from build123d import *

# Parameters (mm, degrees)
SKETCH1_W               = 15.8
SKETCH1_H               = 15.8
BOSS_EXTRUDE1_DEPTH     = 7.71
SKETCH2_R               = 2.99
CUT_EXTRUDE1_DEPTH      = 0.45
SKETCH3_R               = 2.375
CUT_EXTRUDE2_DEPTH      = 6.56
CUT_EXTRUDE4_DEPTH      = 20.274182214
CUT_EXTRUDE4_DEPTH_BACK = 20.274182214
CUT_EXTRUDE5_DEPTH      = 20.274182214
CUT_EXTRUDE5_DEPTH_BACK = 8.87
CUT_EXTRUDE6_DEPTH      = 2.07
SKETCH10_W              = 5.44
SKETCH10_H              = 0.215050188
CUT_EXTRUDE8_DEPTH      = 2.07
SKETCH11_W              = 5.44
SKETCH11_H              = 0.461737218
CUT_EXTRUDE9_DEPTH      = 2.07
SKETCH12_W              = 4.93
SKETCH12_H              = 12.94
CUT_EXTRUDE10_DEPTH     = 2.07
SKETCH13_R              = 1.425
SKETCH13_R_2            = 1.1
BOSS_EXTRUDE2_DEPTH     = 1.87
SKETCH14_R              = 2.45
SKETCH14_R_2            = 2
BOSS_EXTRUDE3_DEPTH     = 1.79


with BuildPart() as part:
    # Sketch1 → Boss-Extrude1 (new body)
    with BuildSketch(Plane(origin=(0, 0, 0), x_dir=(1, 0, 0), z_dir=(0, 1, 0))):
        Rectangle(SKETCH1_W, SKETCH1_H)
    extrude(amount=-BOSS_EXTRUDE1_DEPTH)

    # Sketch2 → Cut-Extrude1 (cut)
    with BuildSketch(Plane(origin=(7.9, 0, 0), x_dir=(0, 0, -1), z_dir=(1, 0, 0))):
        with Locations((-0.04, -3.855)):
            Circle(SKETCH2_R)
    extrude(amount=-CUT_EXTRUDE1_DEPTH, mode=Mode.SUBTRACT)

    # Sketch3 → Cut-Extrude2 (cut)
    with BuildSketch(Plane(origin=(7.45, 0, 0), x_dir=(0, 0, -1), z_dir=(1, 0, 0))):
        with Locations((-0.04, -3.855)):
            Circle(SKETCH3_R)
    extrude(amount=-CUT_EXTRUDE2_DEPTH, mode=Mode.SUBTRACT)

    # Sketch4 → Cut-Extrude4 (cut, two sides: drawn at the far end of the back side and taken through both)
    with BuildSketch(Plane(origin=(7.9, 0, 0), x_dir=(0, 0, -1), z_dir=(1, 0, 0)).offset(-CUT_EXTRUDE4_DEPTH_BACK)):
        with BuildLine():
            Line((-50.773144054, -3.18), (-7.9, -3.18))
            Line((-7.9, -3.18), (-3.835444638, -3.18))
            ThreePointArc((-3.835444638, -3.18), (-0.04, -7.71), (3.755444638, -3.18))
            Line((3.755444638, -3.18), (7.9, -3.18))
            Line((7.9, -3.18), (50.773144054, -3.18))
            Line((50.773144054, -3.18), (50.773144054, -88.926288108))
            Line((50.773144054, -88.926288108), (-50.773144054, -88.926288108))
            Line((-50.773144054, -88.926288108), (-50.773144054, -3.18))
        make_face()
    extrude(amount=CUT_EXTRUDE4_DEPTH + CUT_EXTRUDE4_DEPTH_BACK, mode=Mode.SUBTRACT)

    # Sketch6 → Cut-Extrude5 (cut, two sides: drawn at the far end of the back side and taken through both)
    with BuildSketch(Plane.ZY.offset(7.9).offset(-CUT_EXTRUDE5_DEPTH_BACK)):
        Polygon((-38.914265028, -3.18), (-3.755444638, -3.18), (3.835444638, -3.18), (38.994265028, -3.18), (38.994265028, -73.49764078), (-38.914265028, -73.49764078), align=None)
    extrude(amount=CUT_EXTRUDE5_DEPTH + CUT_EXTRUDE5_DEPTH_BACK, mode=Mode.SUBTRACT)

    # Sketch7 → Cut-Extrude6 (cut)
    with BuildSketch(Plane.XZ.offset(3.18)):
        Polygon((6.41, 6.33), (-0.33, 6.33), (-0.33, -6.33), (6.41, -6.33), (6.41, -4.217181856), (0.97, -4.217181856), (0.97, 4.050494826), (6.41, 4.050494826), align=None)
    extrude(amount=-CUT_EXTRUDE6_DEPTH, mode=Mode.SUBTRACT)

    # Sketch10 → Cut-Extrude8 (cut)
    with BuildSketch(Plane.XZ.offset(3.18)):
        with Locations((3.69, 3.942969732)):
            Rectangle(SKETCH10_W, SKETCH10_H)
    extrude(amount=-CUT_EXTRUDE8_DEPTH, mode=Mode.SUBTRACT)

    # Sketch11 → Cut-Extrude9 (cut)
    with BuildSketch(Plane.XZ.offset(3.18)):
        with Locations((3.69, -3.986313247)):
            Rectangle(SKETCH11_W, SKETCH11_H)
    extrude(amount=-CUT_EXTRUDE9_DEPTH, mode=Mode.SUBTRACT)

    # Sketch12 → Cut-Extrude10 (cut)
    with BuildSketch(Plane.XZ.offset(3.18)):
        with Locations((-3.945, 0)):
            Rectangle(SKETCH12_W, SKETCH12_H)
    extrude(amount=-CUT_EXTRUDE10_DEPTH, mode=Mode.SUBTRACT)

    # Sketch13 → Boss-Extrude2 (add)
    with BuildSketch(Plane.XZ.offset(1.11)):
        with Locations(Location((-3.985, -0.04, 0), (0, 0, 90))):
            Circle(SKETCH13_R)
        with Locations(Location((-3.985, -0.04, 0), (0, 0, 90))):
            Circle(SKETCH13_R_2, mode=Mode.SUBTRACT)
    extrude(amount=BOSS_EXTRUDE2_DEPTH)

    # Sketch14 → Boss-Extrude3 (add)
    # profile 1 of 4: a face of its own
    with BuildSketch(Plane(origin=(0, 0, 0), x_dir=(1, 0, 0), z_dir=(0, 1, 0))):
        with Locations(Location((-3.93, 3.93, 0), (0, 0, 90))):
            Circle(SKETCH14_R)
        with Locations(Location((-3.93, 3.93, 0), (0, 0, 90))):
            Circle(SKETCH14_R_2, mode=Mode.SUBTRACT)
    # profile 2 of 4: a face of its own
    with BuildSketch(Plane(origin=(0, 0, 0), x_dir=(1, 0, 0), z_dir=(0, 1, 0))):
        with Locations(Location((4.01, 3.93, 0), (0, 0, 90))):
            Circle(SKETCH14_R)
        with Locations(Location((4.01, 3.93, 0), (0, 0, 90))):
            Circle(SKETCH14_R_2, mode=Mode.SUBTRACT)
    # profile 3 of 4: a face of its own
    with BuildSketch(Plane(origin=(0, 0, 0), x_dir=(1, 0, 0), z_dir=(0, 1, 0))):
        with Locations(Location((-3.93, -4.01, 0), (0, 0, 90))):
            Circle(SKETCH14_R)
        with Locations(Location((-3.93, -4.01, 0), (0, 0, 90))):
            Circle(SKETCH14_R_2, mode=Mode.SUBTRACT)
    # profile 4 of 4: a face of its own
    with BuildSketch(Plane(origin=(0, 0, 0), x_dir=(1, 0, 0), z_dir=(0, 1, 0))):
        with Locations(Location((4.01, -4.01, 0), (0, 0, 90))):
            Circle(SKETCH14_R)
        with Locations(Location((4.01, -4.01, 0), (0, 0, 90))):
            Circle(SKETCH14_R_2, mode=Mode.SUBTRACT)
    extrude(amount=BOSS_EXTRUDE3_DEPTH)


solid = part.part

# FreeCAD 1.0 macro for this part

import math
import FreeCAD as App
import Part
import Sketcher

doc = App.newDocument("Part")
params = doc.addObject("Spreadsheet::Sheet", "Params")
for row, (alias, value) in enumerate([
    ("sketch1_width", "15.8 mm"),
    ("pad1_length", "7.71 mm"),
    ("sketch2_diameter", "5.98 mm"),
    ("pocket1_length", "0.45 mm"),
    ("sketch3_diameter", "4.75 mm"),
    ("pocket2_length", "6.56 mm"),
    ("pocket4_length", "20.274182 mm"),
    ("pocket4_length2", "8.87 mm"),
    ("sketch6_width", "6.74 mm"),
    ("sketch6_width2", "5.44 mm"),
    ("sketch6_height", "12.66 mm"),
    ("pocket5_length", "2.07 mm"),
    ("sketch7_width", "5.44 mm"),
    ("pocket6_length", "2.07 mm"),
    ("sketch8_width", "5.44 mm"),
    ("pocket7_length", "2.07 mm"),
    ("sketch9_width", "4.93 mm"),
    ("sketch9_height", "12.94 mm"),
    ("pocket8_length", "2.07 mm"),
    ("sketch10_diameter", "2.2 mm"),
    ("sketch10_diameter2", "2.85 mm"),
    ("pad2_length", "1.87 mm"),
    ("sketch11_diameter", "4 mm"),
    ("sketch11_diameter2", "4.9 mm"),
    ("pad3_length", "1.79 mm"),
], start=1):
    params.set(f"A{row}", alias)
    params.set(f"B{row}", "=" + value)
    params.setAlias(f"B{row}", alias)

body = doc.addObject("PartDesign::Body", "Body")

# Sketch on XZ plane
sketch1 = doc.addObject("Sketcher::SketchObject", "Sketch")
body.addObject(sketch1)
sketch1.AttachmentSupport = (doc.XZ_Plane, [""])
sketch1.MapMode = "FlatFace"
sketch1.addGeometry([
    Part.LineSegment(App.Vector(-7.9, -7.9, 0), App.Vector(-7.9, 7.9, 0)),
    Part.LineSegment(App.Vector(-7.9, 7.9, 0), App.Vector(7.9, 7.9, 0)),
    Part.LineSegment(App.Vector(7.9, 7.9, 0), App.Vector(7.9, -7.9, 0)),
    Part.LineSegment(App.Vector(7.9, -7.9, 0), App.Vector(-7.9, -7.9, 0)),
], False)
sketch1.addConstraint([
    Sketcher.Constraint("Coincident", 0, 2, 1, 1),
    Sketcher.Constraint("Coincident", 1, 2, 2, 1),
    Sketcher.Constraint("Coincident", 2, 2, 3, 1),
    Sketcher.Constraint("Coincident", 3, 2, 0, 1),
    Sketcher.Constraint("Vertical", 0),
    Sketcher.Constraint("Horizontal", 1),
    Sketcher.Constraint("Vertical", 2),
    Sketcher.Constraint("Horizontal", 3),
    Sketcher.Constraint("Symmetric", 0, 2, 2, 2, -1, 1),
    Sketcher.Constraint("Equal", 3, 0),
    Sketcher.Constraint("DistanceX", 1, 1, 1, 2, 15.8),
])
sketch1.setExpression("Constraints[10]", "Params.sketch1_width")
pad1 = doc.addObject("PartDesign::Pad", "Pad")
body.addObject(pad1)
pad1.Profile = sketch1
pad1.setExpression("Length", "Params.pad1_length")

# Sketch on YZ plane
sketch2 = doc.addObject("Sketcher::SketchObject", "Sketch001")
body.addObject(sketch2)
sketch2.AttachmentSupport = (doc.YZ_Plane, [""])
sketch2.MapMode = "FlatFace"
sketch2.AttachmentOffset = App.Placement(App.Vector(0, 0, 7.9), App.Rotation())
sketch2.addGeometry(Part.Circle(App.Vector(-3.855, 0.04, 0), App.Vector(0, 0, 1), 2.99), False)
sketch2.addConstraint([
    Sketcher.Constraint("Diameter", 0, 5.98),
    Sketcher.Constraint("DistanceY", -1, 1, 0, 3, 0.04),
    Sketcher.Constraint("DistanceX", 0, 3, -1, 1, 3.855),
])
sketch2.setExpression("Constraints[0]", "Params.sketch2_diameter")
pocket1 = doc.addObject("PartDesign::Pocket", "Pocket")
body.addObject(pocket1)
pocket1.Profile = sketch2
pocket1.setExpression("Length", "Params.pocket1_length")

# Sketch on YZ plane
sketch3 = doc.addObject("Sketcher::SketchObject", "Sketch002")
body.addObject(sketch3)
sketch3.AttachmentSupport = (doc.YZ_Plane, [""])
sketch3.MapMode = "FlatFace"
sketch3.AttachmentOffset = App.Placement(App.Vector(0, 0, 7.45), App.Rotation())
sketch3.addGeometry(Part.Circle(App.Vector(-3.855, 0.04, 0), App.Vector(0, 0, 1), 2.375), False)
sketch3.addConstraint([
    Sketcher.Constraint("Diameter", 0, 4.75),
    Sketcher.Constraint("DistanceY", -1, 1, 0, 3, 0.04),
    Sketcher.Constraint("DistanceX", 0, 3, -1, 1, 3.855),
])
sketch3.setExpression("Constraints[0]", "Params.sketch3_diameter")
pocket2 = doc.addObject("PartDesign::Pocket", "Pocket001")
body.addObject(pocket2)
pocket2.Profile = sketch3
pocket2.setExpression("Length", "Params.pocket2_length")

# Sketch on YZ plane
sketch4 = doc.addObject("Sketcher::SketchObject", "Sketch003")
body.addObject(sketch4)
sketch4.AttachmentSupport = (doc.YZ_Plane, [""])
sketch4.MapMode = "FlatFace"
sketch4.AttachmentOffset = App.Placement(App.Vector(0, 0, 7.9), App.Rotation())
sketch4.addGeometry([
    Part.LineSegment(App.Vector(-3.18, 3.835445, 0), App.Vector(-3.18, 50.773144, 0)),  # 0
    Part.LineSegment(App.Vector(-3.18, 50.773144, 0), App.Vector(-88.926288, 50.773144, 0)),  # 1
    Part.LineSegment(App.Vector(-88.926288, 50.773144, 0), App.Vector(-88.926288, -50.773144, 0)),  # 2
    Part.LineSegment(App.Vector(-88.926288, -50.773144, 0), App.Vector(-3.18, -50.773144, 0)),  # 3
    Part.LineSegment(App.Vector(-3.18, -50.773144, 0), App.Vector(-3.18, -3.755445, 0)),  # 4
    Part.ArcOfCircle(Part.Circle(App.Vector(-3.855, 0.04, 0), App.Vector(0, 0, 1), 3.855), math.radians(79.915681), math.radians(280.084319)),  # 5
], False)
sketch4.addConstraint([
    Sketcher.Constraint("Coincident", 0, 2, 1, 1),
    Sketcher.Constraint("Coincident", 1, 2, 2, 1),
    Sketcher.Constraint("Coincident", 2, 2, 3, 1),
    Sketcher.Constraint("Coincident", 3, 2, 4, 1),
    Sketcher.Constraint("Coincident", 4, 2, 5, 2),
    Sketcher.Constraint("Coincident", 5, 1, 0, 1),
    Sketcher.Constraint("Vertical", 0),
    Sketcher.Constraint("Horizontal", 1),
    Sketcher.Constraint("Vertical", 2),
    Sketcher.Constraint("Horizontal", 3),
    Sketcher.Constraint("Vertical", 4),
    Sketcher.Constraint("Symmetric", 0, 2, 3, 2, -1),
    Sketcher.Constraint("Radius", 5, 3.855),
    Sketcher.Constraint("DistanceY", -1, 1, 5, 3, 0.04),
    Sketcher.Constraint("DistanceX", 0, 2, -1, 1, 3.18),
    Sketcher.Constraint("DistanceY", 0, 1, 0, 2, 46.937699),
    Sketcher.Constraint("DistanceX", 5, 3, -1, 1, 3.855),
    Sketcher.Constraint("DistanceX", 1, 2, 1, 1, 85.746288),
])
pocket3 = doc.addObject("PartDesign::Pocket", "Pocket002")
body.addObject(pocket3)
pocket3.Profile = sketch4
pocket3.Type = "ThroughAll"
pocket3.Midplane = True

# Sketch on YZ plane
sketch5 = doc.addObject("Sketcher::SketchObject", "Sketch004")
body.addObject(sketch5)
sketch5.AttachmentSupport = (doc.YZ_Plane, [""])
sketch5.MapMode = "FlatFace"
sketch5.AttachmentOffset = App.Placement(App.Vector(0, 0, -7.9), App.Rotation())
sketch5.addGeometry([
    Part.LineSegment(App.Vector(-3.18, 38.994265, 0), App.Vector(-3.18, -38.914265, 0)),
    Part.LineSegment(App.Vector(-3.18, -38.914265, 0), App.Vector(-73.497641, -38.914265, 0)),
    Part.LineSegment(App.Vector(-73.497641, -38.914265, 0), App.Vector(-73.497641, 38.994265, 0)),
    Part.LineSegment(App.Vector(-73.497641, 38.994265, 0), App.Vector(-3.18, 38.994265, 0)),
], False)
sketch5.addConstraint([
    Sketcher.Constraint("Coincident", 0, 2, 1, 1),
    Sketcher.Constraint("Coincident", 1, 2, 2, 1),
    Sketcher.Constraint("Coincident", 2, 2, 3, 1),
    Sketcher.Constraint("Coincident", 3, 2, 0, 1),
    Sketcher.Constraint("Vertical", 0),
    Sketcher.Constraint("Horizontal", 1),
    Sketcher.Constraint("Vertical", 2),
    Sketcher.Constraint("Horizontal", 3),
    Sketcher.Constraint("DistanceX", 0, 2, -1, 1, 3.18),
    Sketcher.Constraint("DistanceX", 1, 2, 1, 1, 70.317641),
    Sketcher.Constraint("DistanceY", 0, 2, 0, 1, 77.90853),
    Sketcher.Constraint("DistanceY", 0, 2, -1, 1, 38.914265),
])
pocket4 = doc.addObject("PartDesign::Pocket", "Pocket003")
body.addObject(pocket4)
pocket4.Profile = sketch5
pocket4.Type = "TwoLengths"
pocket4.setExpression("Length", "Params.pocket4_length")
pocket4.setExpression("Length2", "Params.pocket4_length2")

# Sketch on XZ plane
sketch6 = doc.addObject("Sketcher::SketchObject", "Sketch005")
body.addObject(sketch6)
sketch6.AttachmentSupport = (doc.XZ_Plane, [""])
sketch6.MapMode = "FlatFace"
sketch6.AttachmentOffset = App.Placement(App.Vector(0, 0, 3.18), App.Rotation())
sketch6.addGeometry([
    Part.LineSegment(App.Vector(6.41, 6.33, 0), App.Vector(-0.33, 6.33, 0)),  # 0
    Part.LineSegment(App.Vector(-0.33, 6.33, 0), App.Vector(-0.33, -6.33, 0)),  # 1
    Part.LineSegment(App.Vector(-0.33, -6.33, 0), App.Vector(6.41, -6.33, 0)),  # 2
    Part.LineSegment(App.Vector(6.41, -6.33, 0), App.Vector(6.41, -4.217182, 0)),  # 3
    Part.LineSegment(App.Vector(6.41, -4.217182, 0), App.Vector(0.97, -4.217182, 0)),  # 4
    Part.LineSegment(App.Vector(0.97, -4.217182, 0), App.Vector(0.97, 4.050495, 0)),  # 5
    Part.LineSegment(App.Vector(0.97, 4.050495, 0), App.Vector(6.41, 4.050495, 0)),  # 6
    Part.LineSegment(App.Vector(6.41, 4.050495, 0), App.Vector(6.41, 6.33, 0)),  # 7
], False)
sketch6.addConstraint([
    Sketcher.Constraint("Coincident", 0, 2, 1, 1),
    Sketcher.Constraint("Coincident", 1, 2, 2, 1),
    Sketcher.Constraint("Coincident", 2, 2, 3, 1),
    Sketcher.Constraint("Coincident", 3, 2, 4, 1),
    Sketcher.Constraint("Coincident", 4, 2, 5, 1),
    Sketcher.Constraint("Coincident", 5, 2, 6, 1),
    Sketcher.Constraint("Coincident", 6, 2, 7, 1),
    Sketcher.Constraint("Coincident", 7, 2, 0, 1),
    Sketcher.Constraint("Horizontal", 0),
    Sketcher.Constraint("Vertical", 1),
    Sketcher.Constraint("Horizontal", 2),
    Sketcher.Constraint("Vertical", 3),
    Sketcher.Constraint("Horizontal", 4),
    Sketcher.Constraint("Vertical", 5),
    Sketcher.Constraint("Horizontal", 6),
    Sketcher.Constraint("Vertical", 7),
    Sketcher.Constraint("Symmetric", 2, 2, 7, 2, -1),
    Sketcher.Constraint("DistanceX", 0, 2, 0, 1, 6.74),
    Sketcher.Constraint("DistanceX", 4, 2, 4, 1, 5.44),
    Sketcher.Constraint("DistanceY", 1, 2, 1, 1, 12.66),
    Sketcher.Constraint("DistanceX", 0, 2, -1, 1, 0.33),
    Sketcher.Constraint("DistanceY", 3, 1, 3, 2, 2.112818),
    Sketcher.Constraint("DistanceY", 5, 1, 5, 2, 8.267677),
])
sketch6.setExpression("Constraints[17]", "Params.sketch6_width")
sketch6.setExpression("Constraints[18]", "Params.sketch6_width2")
sketch6.setExpression("Constraints[19]", "Params.sketch6_height")
pocket5 = doc.addObject("PartDesign::Pocket", "Pocket004")
body.addObject(pocket5)
pocket5.Profile = sketch6
pocket5.setExpression("Length", "Params.pocket5_length")

# Sketch on XZ plane
sketch7 = doc.addObject("Sketcher::SketchObject", "Sketch006")
body.addObject(sketch7)
sketch7.AttachmentSupport = (doc.XZ_Plane, [""])
sketch7.MapMode = "FlatFace"
sketch7.AttachmentOffset = App.Placement(App.Vector(0, 0, 3.18), App.Rotation())
sketch7.addGeometry([
    Part.LineSegment(App.Vector(0.97, 4.050495, 0), App.Vector(0.97, 3.835445, 0)),
    Part.LineSegment(App.Vector(0.97, 3.835445, 0), App.Vector(6.41, 3.835445, 0)),
    Part.LineSegment(App.Vector(6.41, 3.835445, 0), App.Vector(6.41, 4.050495, 0)),
    Part.LineSegment(App.Vector(6.41, 4.050495, 0), App.Vector(0.97, 4.050495, 0)),
], False)
sketch7.addConstraint([
    Sketcher.Constraint("Coincident", 0, 2, 1, 1),
    Sketcher.Constraint("Coincident", 1, 2, 2, 1),
    Sketcher.Constraint("Coincident", 2, 2, 3, 1),
    Sketcher.Constraint("Coincident", 3, 2, 0, 1),
    Sketcher.Constraint("Vertical", 0),
    Sketcher.Constraint("Horizontal", 1),
    Sketcher.Constraint("Vertical", 2),
    Sketcher.Constraint("Horizontal", 3),
    Sketcher.Constraint("DistanceX", 1, 1, 1, 2, 5.44),
    Sketcher.Constraint("DistanceX", -1, 1, 0, 2, 0.97),
    Sketcher.Constraint("DistanceY", 0, 2, 0, 1, 0.21505),
    Sketcher.Constraint("DistanceY", -1, 1, 0, 2, 3.835445),
])
sketch7.setExpression("Constraints[8]", "Params.sketch7_width")
pocket6 = doc.addObject("PartDesign::Pocket", "Pocket005")
body.addObject(pocket6)
pocket6.Profile = sketch7
pocket6.setExpression("Length", "Params.pocket6_length")

# Sketch on XZ plane
sketch8 = doc.addObject("Sketcher::SketchObject", "Sketch007")
body.addObject(sketch8)
sketch8.AttachmentSupport = (doc.XZ_Plane, [""])
sketch8.MapMode = "FlatFace"
sketch8.AttachmentOffset = App.Placement(App.Vector(0, 0, 3.18), App.Rotation())
sketch8.addGeometry([
    Part.LineSegment(App.Vector(0.97, -3.755445, 0), App.Vector(0.97, -4.217182, 0)),
    Part.LineSegment(App.Vector(0.97, -4.217182, 0), App.Vector(6.41, -4.217182, 0)),
    Part.LineSegment(App.Vector(6.41, -4.217182, 0), App.Vector(6.41, -3.755445, 0)),
    Part.LineSegment(App.Vector(6.41, -3.755445, 0), App.Vector(0.97, -3.755445, 0)),
], False)
sketch8.addConstraint([
    Sketcher.Constraint("Coincident", 0, 2, 1, 1),
    Sketcher.Constraint("Coincident", 1, 2, 2, 1),
    Sketcher.Constraint("Coincident", 2, 2, 3, 1),
    Sketcher.Constraint("Coincident", 3, 2, 0, 1),
    Sketcher.Constraint("Vertical", 0),
    Sketcher.Constraint("Horizontal", 1),
    Sketcher.Constraint("Vertical", 2),
    Sketcher.Constraint("Horizontal", 3),
    Sketcher.Constraint("DistanceX", 1, 1, 1, 2, 5.44),
    Sketcher.Constraint("DistanceX", -1, 1, 0, 2, 0.97),
    Sketcher.Constraint("DistanceY", 0, 2, 0, 1, 0.461737),
    Sketcher.Constraint("DistanceY", 0, 2, -1, 1, 4.217182),
])
sketch8.setExpression("Constraints[8]", "Params.sketch8_width")
pocket7 = doc.addObject("PartDesign::Pocket", "Pocket006")
body.addObject(pocket7)
pocket7.Profile = sketch8
pocket7.setExpression("Length", "Params.pocket7_length")

# Sketch on XZ plane
sketch9 = doc.addObject("Sketcher::SketchObject", "Sketch008")
body.addObject(sketch9)
sketch9.AttachmentSupport = (doc.XZ_Plane, [""])
sketch9.MapMode = "FlatFace"
sketch9.AttachmentOffset = App.Placement(App.Vector(0, 0, 3.18), App.Rotation())
sketch9.addGeometry([
    Part.LineSegment(App.Vector(-6.41, 6.47, 0), App.Vector(-6.41, -6.47, 0)),
    Part.LineSegment(App.Vector(-6.41, -6.47, 0), App.Vector(-1.48, -6.47, 0)),
    Part.LineSegment(App.Vector(-1.48, -6.47, 0), App.Vector(-1.48, 6.47, 0)),
    Part.LineSegment(App.Vector(-1.48, 6.47, 0), App.Vector(-6.41, 6.47, 0)),
], False)
sketch9.addConstraint([
    Sketcher.Constraint("Coincident", 0, 2, 1, 1),
    Sketcher.Constraint("Coincident", 1, 2, 2, 1),
    Sketcher.Constraint("Coincident", 2, 2, 3, 1),
    Sketcher.Constraint("Coincident", 3, 2, 0, 1),
    Sketcher.Constraint("Vertical", 0),
    Sketcher.Constraint("Horizontal", 1),
    Sketcher.Constraint("Vertical", 2),
    Sketcher.Constraint("Horizontal", 3),
    Sketcher.Constraint("DistanceX", 1, 1, 1, 2, 4.93),
    Sketcher.Constraint("DistanceY", 0, 2, 0, 1, 12.94),
    Sketcher.Constraint("DistanceX", 0, 2, -1, 1, 6.41),
    Sketcher.Constraint("DistanceY", 0, 2, -1, 1, 6.47),
])
sketch9.setExpression("Constraints[8]", "Params.sketch9_width")
sketch9.setExpression("Constraints[9]", "Params.sketch9_height")
pocket8 = doc.addObject("PartDesign::Pocket", "Pocket007")
body.addObject(pocket8)
pocket8.Profile = sketch9
pocket8.setExpression("Length", "Params.pocket8_length")

# Sketch on XZ plane
sketch10 = doc.addObject("Sketcher::SketchObject", "Sketch009")
body.addObject(sketch10)
sketch10.AttachmentSupport = (doc.XZ_Plane, [""])
sketch10.MapMode = "FlatFace"
sketch10.AttachmentOffset = App.Placement(App.Vector(0, 0, 1.11), App.Rotation())
sketch10.addGeometry([
    Part.Circle(App.Vector(-3.985, -0.04, 0), App.Vector(0, 0, 1), 1.425),
    Part.Circle(App.Vector(-3.985, -0.04, 0), App.Vector(0, 0, 1), 1.1),
], False)
sketch10.addConstraint([
    Sketcher.Constraint("Coincident", 1, 3, 0, 3),
    Sketcher.Constraint("Diameter", 1, 2.2),
    Sketcher.Constraint("Diameter", 0, 2.85),
    Sketcher.Constraint("DistanceY", 0, 3, -1, 1, 0.04),
    Sketcher.Constraint("DistanceX", 0, 3, -1, 1, 3.985),
])
sketch10.setExpression("Constraints[1]", "Params.sketch10_diameter")
sketch10.setExpression("Constraints[2]", "Params.sketch10_diameter2")
pad2 = doc.addObject("PartDesign::Pad", "Pad001")
body.addObject(pad2)
pad2.Profile = sketch10
pad2.setExpression("Length", "Params.pad2_length")

# Sketch on XZ plane
sketch11 = doc.addObject("Sketcher::SketchObject", "Sketch010")
body.addObject(sketch11)
sketch11.AttachmentSupport = (doc.XZ_Plane, [""])
sketch11.MapMode = "FlatFace"
sketch11.addGeometry([
    Part.Circle(App.Vector(-3.93, -3.93, 0), App.Vector(0, 0, 1), 2.45),  # 0
    Part.Circle(App.Vector(-3.93, -3.93, 0), App.Vector(0, 0, 1), 2),  # 1
    Part.Circle(App.Vector(4.01, -3.93, 0), App.Vector(0, 0, 1), 2.45),  # 2
    Part.Circle(App.Vector(4.01, -3.93, 0), App.Vector(0, 0, 1), 2),  # 3
    Part.Circle(App.Vector(-3.93, 4.01, 0), App.Vector(0, 0, 1), 2.45),  # 4
    Part.Circle(App.Vector(-3.93, 4.01, 0), App.Vector(0, 0, 1), 2),  # 5
    Part.Circle(App.Vector(4.01, 4.01, 0), App.Vector(0, 0, 1), 2.45),  # 6
    Part.Circle(App.Vector(4.01, 4.01, 0), App.Vector(0, 0, 1), 2),  # 7
], False)
sketch11.addConstraint([
    Sketcher.Constraint("Coincident", 1, 3, 0, 3),
    Sketcher.Constraint("Coincident", 3, 3, 2, 3),
    Sketcher.Constraint("Coincident", 5, 3, 4, 3),
    Sketcher.Constraint("Coincident", 7, 3, 6, 3),
    Sketcher.Constraint("Equal", 0, 2),
    Sketcher.Constraint("Equal", 1, 3),
    Sketcher.Constraint("Equal", 2, 4),
    Sketcher.Constraint("Equal", 3, 5),
    Sketcher.Constraint("Equal", 4, 6),
    Sketcher.Constraint("Equal", 5, 7),
    Sketcher.Constraint("Horizontal", 1, 3, 2, 3),
    Sketcher.Constraint("Horizontal", 5, 3, 6, 3),
    Sketcher.Constraint("Vertical", 1, 3, 4, 3),
    Sketcher.Constraint("Vertical", 3, 3, 6, 3),
    Sketcher.Constraint("Diameter", 1, 4.0),
    Sketcher.Constraint("Diameter", 0, 4.9),
    Sketcher.Constraint("DistanceX", 0, 3, -1, 1, 3.93),
    Sketcher.Constraint("DistanceY", 0, 3, -1, 1, 3.93),
    Sketcher.Constraint("DistanceX", -1, 1, 2, 3, 4.01),
    Sketcher.Constraint("DistanceY", -1, 1, 4, 3, 4.01),
])
sketch11.setExpression("Constraints[14]", "Params.sketch11_diameter")
sketch11.setExpression("Constraints[15]", "Params.sketch11_diameter2")
pad3 = doc.addObject("PartDesign::Pad", "Pad002")
body.addObject(pad3)
pad3.Profile = sketch11
pad3.setExpression("Length", "Params.pad3_length")
pad3.Reversed = True

doc.recompute()
